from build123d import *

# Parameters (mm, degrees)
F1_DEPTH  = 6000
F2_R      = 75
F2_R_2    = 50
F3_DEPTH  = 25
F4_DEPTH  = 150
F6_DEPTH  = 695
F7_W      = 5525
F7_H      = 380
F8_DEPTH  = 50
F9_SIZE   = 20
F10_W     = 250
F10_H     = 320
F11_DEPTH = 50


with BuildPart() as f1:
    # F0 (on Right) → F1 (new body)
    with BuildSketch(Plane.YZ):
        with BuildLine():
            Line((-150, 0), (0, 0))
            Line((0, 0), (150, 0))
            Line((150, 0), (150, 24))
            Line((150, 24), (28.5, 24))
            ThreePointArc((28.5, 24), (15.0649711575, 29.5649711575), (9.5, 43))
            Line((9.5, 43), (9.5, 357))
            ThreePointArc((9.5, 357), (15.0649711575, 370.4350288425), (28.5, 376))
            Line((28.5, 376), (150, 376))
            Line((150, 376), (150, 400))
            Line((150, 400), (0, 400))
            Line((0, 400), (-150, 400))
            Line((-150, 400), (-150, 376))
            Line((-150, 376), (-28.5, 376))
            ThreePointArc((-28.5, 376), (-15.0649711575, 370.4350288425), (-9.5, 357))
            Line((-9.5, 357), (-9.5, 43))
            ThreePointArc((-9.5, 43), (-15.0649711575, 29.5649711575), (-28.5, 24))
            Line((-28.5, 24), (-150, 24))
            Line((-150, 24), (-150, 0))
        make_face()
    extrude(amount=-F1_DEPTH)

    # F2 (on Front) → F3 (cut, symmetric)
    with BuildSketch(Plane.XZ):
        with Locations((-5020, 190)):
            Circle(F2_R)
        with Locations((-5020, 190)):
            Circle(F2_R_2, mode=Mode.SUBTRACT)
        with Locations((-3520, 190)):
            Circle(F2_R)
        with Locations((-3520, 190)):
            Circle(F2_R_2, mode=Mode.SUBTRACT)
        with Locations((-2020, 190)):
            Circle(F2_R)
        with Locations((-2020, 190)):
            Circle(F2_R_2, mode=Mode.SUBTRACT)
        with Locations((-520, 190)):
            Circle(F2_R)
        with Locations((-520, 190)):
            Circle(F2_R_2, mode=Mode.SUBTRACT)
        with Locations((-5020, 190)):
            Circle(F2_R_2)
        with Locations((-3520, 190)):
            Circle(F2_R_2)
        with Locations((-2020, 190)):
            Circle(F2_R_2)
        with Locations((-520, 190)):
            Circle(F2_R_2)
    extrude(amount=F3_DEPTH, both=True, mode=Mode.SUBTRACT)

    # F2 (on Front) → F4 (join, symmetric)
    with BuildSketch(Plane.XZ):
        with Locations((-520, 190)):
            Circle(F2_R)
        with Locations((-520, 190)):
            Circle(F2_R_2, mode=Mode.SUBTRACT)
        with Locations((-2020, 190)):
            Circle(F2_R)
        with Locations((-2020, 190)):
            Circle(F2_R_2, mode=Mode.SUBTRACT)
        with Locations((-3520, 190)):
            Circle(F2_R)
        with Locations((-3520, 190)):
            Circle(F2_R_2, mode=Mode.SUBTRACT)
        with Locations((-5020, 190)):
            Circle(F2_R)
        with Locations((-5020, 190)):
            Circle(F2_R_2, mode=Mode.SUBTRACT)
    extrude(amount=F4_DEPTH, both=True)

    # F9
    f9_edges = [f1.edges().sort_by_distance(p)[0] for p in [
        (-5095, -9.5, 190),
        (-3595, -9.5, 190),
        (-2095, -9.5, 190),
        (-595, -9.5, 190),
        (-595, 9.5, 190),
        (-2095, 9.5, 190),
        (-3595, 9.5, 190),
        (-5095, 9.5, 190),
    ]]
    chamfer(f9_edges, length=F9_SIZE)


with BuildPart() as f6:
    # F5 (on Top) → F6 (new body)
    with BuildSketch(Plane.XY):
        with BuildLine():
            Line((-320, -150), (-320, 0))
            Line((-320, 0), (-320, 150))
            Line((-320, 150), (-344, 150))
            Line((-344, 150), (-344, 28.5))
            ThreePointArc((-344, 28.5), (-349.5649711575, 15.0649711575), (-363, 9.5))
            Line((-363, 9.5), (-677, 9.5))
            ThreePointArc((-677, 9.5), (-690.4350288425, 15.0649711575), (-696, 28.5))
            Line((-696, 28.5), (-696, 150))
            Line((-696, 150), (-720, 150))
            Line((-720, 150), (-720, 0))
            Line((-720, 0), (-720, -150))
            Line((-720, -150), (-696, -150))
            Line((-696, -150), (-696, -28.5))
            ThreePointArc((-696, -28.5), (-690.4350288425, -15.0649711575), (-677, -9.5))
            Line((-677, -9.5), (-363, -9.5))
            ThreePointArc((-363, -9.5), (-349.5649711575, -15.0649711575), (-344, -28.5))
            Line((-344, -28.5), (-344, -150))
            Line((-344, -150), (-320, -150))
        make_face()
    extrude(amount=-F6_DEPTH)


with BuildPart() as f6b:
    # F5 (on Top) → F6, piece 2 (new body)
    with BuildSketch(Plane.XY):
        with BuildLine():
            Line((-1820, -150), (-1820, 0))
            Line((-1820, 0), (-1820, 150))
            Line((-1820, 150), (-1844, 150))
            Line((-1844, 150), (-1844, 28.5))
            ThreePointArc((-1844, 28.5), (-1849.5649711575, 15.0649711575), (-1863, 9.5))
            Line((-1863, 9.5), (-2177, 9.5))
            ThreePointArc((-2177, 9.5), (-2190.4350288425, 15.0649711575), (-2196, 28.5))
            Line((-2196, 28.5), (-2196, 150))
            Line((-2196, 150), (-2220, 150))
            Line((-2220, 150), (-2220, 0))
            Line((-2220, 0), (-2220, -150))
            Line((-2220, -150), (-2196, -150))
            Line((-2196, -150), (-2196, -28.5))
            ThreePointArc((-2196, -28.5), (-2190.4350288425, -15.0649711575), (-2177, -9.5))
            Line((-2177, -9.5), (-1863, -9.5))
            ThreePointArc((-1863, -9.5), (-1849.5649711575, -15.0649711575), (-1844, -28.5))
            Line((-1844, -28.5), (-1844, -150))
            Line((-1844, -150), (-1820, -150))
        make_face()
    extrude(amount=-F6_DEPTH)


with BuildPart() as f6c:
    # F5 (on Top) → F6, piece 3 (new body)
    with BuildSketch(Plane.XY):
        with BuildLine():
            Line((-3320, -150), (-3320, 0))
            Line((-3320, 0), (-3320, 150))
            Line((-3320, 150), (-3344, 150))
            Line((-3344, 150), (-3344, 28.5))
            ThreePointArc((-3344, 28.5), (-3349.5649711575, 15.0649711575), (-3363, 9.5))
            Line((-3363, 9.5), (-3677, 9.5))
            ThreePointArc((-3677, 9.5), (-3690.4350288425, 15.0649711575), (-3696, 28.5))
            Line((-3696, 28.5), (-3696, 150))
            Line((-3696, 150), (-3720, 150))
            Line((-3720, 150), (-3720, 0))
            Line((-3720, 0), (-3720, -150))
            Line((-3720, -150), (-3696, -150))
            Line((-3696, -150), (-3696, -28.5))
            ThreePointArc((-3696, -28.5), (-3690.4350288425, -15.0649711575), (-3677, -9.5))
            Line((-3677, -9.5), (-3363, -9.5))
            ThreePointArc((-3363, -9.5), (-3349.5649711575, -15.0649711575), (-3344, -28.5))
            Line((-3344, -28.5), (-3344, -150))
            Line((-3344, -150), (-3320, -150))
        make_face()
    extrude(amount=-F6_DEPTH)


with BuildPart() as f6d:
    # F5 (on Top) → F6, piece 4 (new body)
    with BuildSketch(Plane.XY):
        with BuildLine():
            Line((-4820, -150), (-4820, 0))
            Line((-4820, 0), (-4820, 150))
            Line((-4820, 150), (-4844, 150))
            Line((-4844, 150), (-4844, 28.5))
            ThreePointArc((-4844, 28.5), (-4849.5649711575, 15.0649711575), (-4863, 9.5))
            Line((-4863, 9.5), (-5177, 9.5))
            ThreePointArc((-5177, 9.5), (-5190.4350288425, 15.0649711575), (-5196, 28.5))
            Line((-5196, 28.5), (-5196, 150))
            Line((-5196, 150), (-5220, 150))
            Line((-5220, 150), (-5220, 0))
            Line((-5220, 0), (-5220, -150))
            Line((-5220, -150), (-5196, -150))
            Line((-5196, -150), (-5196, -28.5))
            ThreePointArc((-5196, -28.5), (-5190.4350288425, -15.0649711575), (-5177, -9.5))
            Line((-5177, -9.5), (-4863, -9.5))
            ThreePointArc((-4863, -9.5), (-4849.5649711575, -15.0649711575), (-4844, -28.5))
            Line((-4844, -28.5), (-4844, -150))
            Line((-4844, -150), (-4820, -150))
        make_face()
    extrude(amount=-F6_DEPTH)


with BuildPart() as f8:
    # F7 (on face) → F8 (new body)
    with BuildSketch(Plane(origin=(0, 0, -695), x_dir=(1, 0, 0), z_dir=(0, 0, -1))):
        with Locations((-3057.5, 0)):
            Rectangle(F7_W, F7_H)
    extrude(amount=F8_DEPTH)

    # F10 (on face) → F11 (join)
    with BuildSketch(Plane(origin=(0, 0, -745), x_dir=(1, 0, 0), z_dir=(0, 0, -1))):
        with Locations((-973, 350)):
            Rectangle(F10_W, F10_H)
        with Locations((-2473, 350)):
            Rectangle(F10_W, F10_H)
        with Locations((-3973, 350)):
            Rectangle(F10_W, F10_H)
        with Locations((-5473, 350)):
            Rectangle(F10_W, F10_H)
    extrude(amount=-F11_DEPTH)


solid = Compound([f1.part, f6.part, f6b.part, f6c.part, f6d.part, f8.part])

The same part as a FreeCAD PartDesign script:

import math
import FreeCAD as App
import Part
import Sketcher


def edges_at(feature, points):
    """Names of the edges that pass closest to the given points."""
    edges = feature.Shape.Edges
    near = lambda p: min(range(len(edges)), key=lambda i: edges[i].distToShape(Part.Vertex(*p))[0])
    return sorted({f"Edge{near(p) + 1}" for p in points})


def add_polygon(sketch, points):
    """Adds a closed chain of lines whose ends are joined by coincident constraints."""
    first, n = sketch.GeometryCount, len(points)
    for a, b in zip(points, points[1:] + points[:1]):
        sketch.addGeometry(Part.LineSegment(App.Vector(*a, 0), App.Vector(*b, 0)), False)
    for i in range(n):
        sketch.addConstraint(Sketcher.Constraint("Coincident", first + i, 2, first + (i + 1) % n, 1))

doc = App.newDocument("Part")
body = doc.addObject("PartDesign::Body", "Body")

# Sketch on YZ plane
sketch1 = body.newObject("Sketcher::SketchObject", "Sketch")
sketch1.AttachmentSupport = (doc.getObject("YZ_Plane"), [""])
sketch1.MapMode = "FlatFace"
sketch1.addGeometry([
    Part.LineSegment(App.Vector(-150, 0, 0), App.Vector(150, 0, 0)),  # 0
    Part.LineSegment(App.Vector(150, 0, 0), App.Vector(150, 24, 0)),  # 1
    Part.LineSegment(App.Vector(150, 24, 0), App.Vector(28, 24, 0)),  # 2
    Part.ArcOfCircle(Part.Circle(App.Vector(28, 43, 0), App.Vector(0, 0, 1), 19), math.radians(180), math.radians(270)),  # 3
    Part.LineSegment(App.Vector(10, 43, 0), App.Vector(10, 357, 0)),  # 4
    Part.ArcOfCircle(Part.Circle(App.Vector(28, 357, 0), App.Vector(0, 0, 1), 19), math.radians(90), math.radians(180)),  # 5
    Part.LineSegment(App.Vector(28, 376, 0), App.Vector(150, 376, 0)),  # 6
    Part.LineSegment(App.Vector(150, 376, 0), App.Vector(150, 400, 0)),  # 7
    Part.LineSegment(App.Vector(150, 400, 0), App.Vector(-150, 400, 0)),  # 8
    Part.LineSegment(App.Vector(-150, 400, 0), App.Vector(-150, 376, 0)),  # 9
    Part.LineSegment(App.Vector(-150, 376, 0), App.Vector(-28, 376, 0)),  # 10
    Part.ArcOfCircle(Part.Circle(App.Vector(-28, 357, 0), App.Vector(0, 0, 1), 19), math.radians(0), math.radians(90)),  # 11
    Part.LineSegment(App.Vector(-10, 357, 0), App.Vector(-10, 43, 0)),  # 12
    Part.ArcOfCircle(Part.Circle(App.Vector(-28, 43, 0), App.Vector(0, 0, 1), 19), math.radians(-90), math.radians(0)),  # 13
    Part.LineSegment(App.Vector(-28, 24, 0), App.Vector(-150, 24, 0)),  # 14
    Part.LineSegment(App.Vector(-150, 24, 0), App.Vector(-150, 0, 0)),  # 15
], False)
sketch1.addConstraint([
    Sketcher.Constraint("Coincident", 0, 2, 1, 1),
    Sketcher.Constraint("Coincident", 1, 2, 2, 1),
    Sketcher.Constraint("Tangent", 2, 2, 3, 2),
    Sketcher.Constraint("Tangent", 3, 1, 4, 1),
    Sketcher.Constraint("Tangent", 4, 2, 5, 2),
    Sketcher.Constraint("Tangent", 5, 1, 6, 1),
    Sketcher.Constraint("Coincident", 6, 2, 7, 1),
    Sketcher.Constraint("Coincident", 7, 2, 8, 1),
    Sketcher.Constraint("Coincident", 8, 2, 9, 1),
    Sketcher.Constraint("Coincident", 9, 2, 10, 1),
    Sketcher.Constraint("Tangent", 10, 2, 11, 2),
    Sketcher.Constraint("Tangent", 11, 1, 12, 1),
    Sketcher.Constraint("Tangent", 12, 2, 13, 2),
    Sketcher.Constraint("Tangent", 13, 1, 14, 1),
    Sketcher.Constraint("Coincident", 14, 2, 15, 1),
    Sketcher.Constraint("Coincident", 15, 2, 0, 1),
    Sketcher.Constraint("Horizontal", 0),
    Sketcher.Constraint("Vertical", 1),
    Sketcher.Constraint("Horizontal", 2),
    Sketcher.Constraint("Vertical", 4),
    Sketcher.Constraint("Horizontal", 6),
    Sketcher.Constraint("Vertical", 7),
    Sketcher.Constraint("Horizontal", 8),
    Sketcher.Constraint("Vertical", 9),
    Sketcher.Constraint("Horizontal", 10),
    Sketcher.Constraint("Vertical", 12),
    Sketcher.Constraint("Horizontal", 14),
    Sketcher.Constraint("Vertical", 15),
    Sketcher.Constraint("Equal", 3, 5),
    Sketcher.Constraint("Equal", 5, 11),
    Sketcher.Constraint("Equal", 11, 13),
    Sketcher.Constraint("Symmetric", 0, 2, 15, 2, -1, 1),
    Sketcher.Constraint("Symmetric", 5, 3, 11, 3, -2),
    Sketcher.Constraint("Horizontal", 3, 3, 13, 3),
    Sketcher.Constraint("Vertical", 1, 2, 6, 2),
    Sketcher.Constraint("Vertical", 9, 2, 14, 2),
    Sketcher.Constraint("Equal", 1, 7),
    Sketcher.Constraint("Radius", 3, 19.0),
    Sketcher.Constraint("DistanceX", 0, 1, 0, 2, 300.0),
    Sketcher.Constraint("DistanceY", 1, 1, 1, 2, 24.0),
    Sketcher.Constraint("DistanceY", 4, 1, 4, 2, 314.0),
    Sketcher.Constraint("DistanceX", 2, 2, 2, 1, 121.5),
])
pad1 = body.newObject("PartDesign::Pad", "Pad")
pad1.Profile = sketch1
pad1.Length = 6000
pad1.Reversed = True

# Sketch on XZ plane
sketch2 = body.newObject("Sketcher::SketchObject", "Sketch001")
sketch2.AttachmentSupport = (doc.getObject("XZ_Plane"), [""])
sketch2.MapMode = "FlatFace"
sketch2.addGeometry([
    Part.Circle(App.Vector(-5020, 190, 0), App.Vector(0, 0, 1), 75),
    Part.Circle(App.Vector(-3520, 190, 0), App.Vector(0, 0, 1), 75),
    Part.Circle(App.Vector(-2020, 190, 0), App.Vector(0, 0, 1), 75),
    Part.Circle(App.Vector(-520, 190, 0), App.Vector(0, 0, 1), 75),
], False)
sketch2.addConstraint([
    Sketcher.Constraint("Equal", 0, 1),
    Sketcher.Constraint("Equal", 1, 2),
    Sketcher.Constraint("Equal", 2, 3),
    Sketcher.Constraint("Horizontal", 0, 3, 1, 3),
    Sketcher.Constraint("Horizontal", 1, 3, 2, 3),
    Sketcher.Constraint("Horizontal", 2, 3, 3, 3),
    Sketcher.Constraint("Diameter", 0, 150.0),
    Sketcher.Constraint("DistanceX", 0, 3, -1, 1, 5020.0),
    Sketcher.Constraint("DistanceY", -1, 1, 0, 3, 190.0),
    Sketcher.Constraint("DistanceX", 1, 3, -1, 1, 3520.0),
    Sketcher.Constraint("DistanceX", 2, 3, -1, 1, 2020.0),
    Sketcher.Constraint("DistanceX", 3, 3, -1, 1, 520.0),
])
pocket1 = body.newObject("PartDesign::Pocket", "Pocket")
pocket1.Profile = sketch2
pocket1.Length = 50
pocket1.Midplane = True

# Sketch on XZ plane
sketch3 = body.newObject("Sketcher::SketchObject", "Sketch002")
sketch3.AttachmentSupport = (doc.getObject("XZ_Plane"), [""])
sketch3.MapMode = "FlatFace"
sketch3.addGeometry([
    Part.Circle(App.Vector(-520, 190, 0), App.Vector(0, 0, 1), 75),  # 0
    Part.Circle(App.Vector(-520, 190, 0), App.Vector(0, 0, 1), 50),  # 1
    Part.Circle(App.Vector(-2020, 190, 0), App.Vector(0, 0, 1), 75),  # 2
    Part.Circle(App.Vector(-2020, 190, 0), App.Vector(0, 0, 1), 50),  # 3
    Part.Circle(App.Vector(-3520, 190, 0), App.Vector(0, 0, 1), 75),  # 4
    Part.Circle(App.Vector(-3520, 190, 0), App.Vector(0, 0, 1), 50),  # 5
    Part.Circle(App.Vector(-5020, 190, 0), App.Vector(0, 0, 1), 75),  # 6
    Part.Circle(App.Vector(-5020, 190, 0), App.Vector(0, 0, 1), 50),  # 7
], False)
sketch3.addConstraint([
    Sketcher.Constraint("Coincident", 1, 3, 0, 3),
    Sketcher.Constraint("Coincident", 3, 3, 2, 3),
    Sketcher.Constraint("Coincident", 5, 3, 4, 3),
    Sketcher.Constraint("Coincident", 7, 3, 6, 3),
    Sketcher.Constraint("Equal", 0, 2),
    Sketcher.Constraint("Equal", 1, 3),
    Sketcher.Constraint("Equal", 2, 4),
    Sketcher.Constraint("Equal", 3, 5),
    Sketcher.Constraint("Equal", 4, 6),
    Sketcher.Constraint("Equal", 5, 7),
    Sketcher.Constraint("Horizontal", 1, 3, 2, 3),
    Sketcher.Constraint("Horizontal", 3, 3, 4, 3),
    Sketcher.Constraint("Horizontal", 5, 3, 6, 3),
    Sketcher.Constraint("Diameter", 0, 150.0),
    Sketcher.Constraint("Diameter", 1, 100.0),
    Sketcher.Constraint("DistanceX", 0, 3, -1, 1, 520.0),
    Sketcher.Constraint("DistanceY", -1, 1, 0, 3, 190.0),
    Sketcher.Constraint("DistanceX", 2, 3, -1, 1, 2020.0),
    Sketcher.Constraint("DistanceX", 4, 3, -1, 1, 3520.0),
    Sketcher.Constraint("DistanceX", 6, 3, -1, 1, 5020.0),
])
pad2 = body.newObject("PartDesign::Pad", "Pad001")
pad2.Profile = sketch3
pad2.Length = 300
pad2.Midplane = True
doc.recompute()

chamfer = body.newObject("PartDesign::Chamfer", "Chamfer")
chamfer.Base = (pad2, edges_at(pad2, [
    (-5095, -9.5, 190),
    (-3595, -9.5, 190),
    (-2095, -9.5, 190),
    (-595, -9.5, 190),
    (-595, 9.5, 190),
    (-2095, 9.5, 190),
    (-3595, 9.5, 190),
    (-5095, 9.5, 190),
]))
chamfer.Size = 20
body2 = doc.addObject("PartDesign::Body", "Body001")

# Sketch on XY plane
sketch4 = body2.newObject("Sketcher::SketchObject", "Sketch003")
sketch4.AttachmentSupport = (doc.getObject("XY_Plane001"), [""])
sketch4.MapMode = "FlatFace"
sketch4.addGeometry([
    Part.LineSegment(App.Vector(-320, -150, 0), App.Vector(-320, 150, 0)),  # 0
    Part.LineSegment(App.Vector(-320, 150, 0), App.Vector(-344, 150, 0)),  # 1
    Part.LineSegment(App.Vector(-344, 150, 0), App.Vector(-344, 28, 0)),  # 2
    Part.ArcOfCircle(Part.Circle(App.Vector(-363, 28, 0), App.Vector(0, 0, 1), 19), math.radians(-90), math.radians(0)),  # 3
    Part.LineSegment(App.Vector(-363, 10, 0), App.Vector(-677, 10, 0)),  # 4
    Part.ArcOfCircle(Part.Circle(App.Vector(-677, 28, 0), App.Vector(0, 0, 1), 19), math.radians(180), math.radians(270)),  # 5
    Part.LineSegment(App.Vector(-696, 28, 0), App.Vector(-696, 150, 0)),  # 6
    Part.LineSegment(App.Vector(-696, 150, 0), App.Vector(-720, 150, 0)),  # 7
    Part.LineSegment(App.Vector(-720, 150, 0), App.Vector(-720, -150, 0)),  # 8
    Part.LineSegment(App.Vector(-720, -150, 0), App.Vector(-696, -150, 0)),  # 9
    Part.LineSegment(App.Vector(-696, -150, 0), App.Vector(-696, -28, 0)),  # 10
    Part.ArcOfCircle(Part.Circle(App.Vector(-677, -28, 0), App.Vector(0, 0, 1), 19), math.radians(90), math.radians(180)),  # 11
    Part.LineSegment(App.Vector(-677, -10, 0), App.Vector(-363, -10, 0)),  # 12
    Part.ArcOfCircle(Part.Circle(App.Vector(-363, -28, 0), App.Vector(0, 0, 1), 19), math.radians(0), math.radians(90)),  # 13
    Part.LineSegment(App.Vector(-344, -28, 0), App.Vector(-344, -150, 0)),  # 14
    Part.LineSegment(App.Vector(-344, -150, 0), App.Vector(-320, -150, 0)),  # 15
], False)
sketch4.addConstraint([
    Sketcher.Constraint("Coincident", 0, 2, 1, 1),
    Sketcher.Constraint("Coincident", 1, 2, 2, 1),
    Sketcher.Constraint("Tangent", 2, 2, 3, 2),
    Sketcher.Constraint("Tangent", 3, 1, 4, 1),
    Sketcher.Constraint("Tangent", 4, 2, 5, 2),
    Sketcher.Constraint("Tangent", 5, 1, 6, 1),
    Sketcher.Constraint("Coincident", 6, 2, 7, 1),
    Sketcher.Constraint("Coincident", 7, 2, 8, 1),
    Sketcher.Constraint("Coincident", 8, 2, 9, 1),
    Sketcher.Constraint("Coincident", 9, 2, 10, 1),
    Sketcher.Constraint("Tangent", 10, 2, 11, 2),
    Sketcher.Constraint("Tangent", 11, 1, 12, 1),
    Sketcher.Constraint("Tangent", 12, 2, 13, 2),
    Sketcher.Constraint("Tangent", 13, 1, 14, 1),
    Sketcher.Constraint("Coincident", 14, 2, 15, 1),
    Sketcher.Constraint("Coincident", 15, 2, 0, 1),
    Sketcher.Constraint("Vertical", 0),
    Sketcher.Constraint("Horizontal", 1),
    Sketcher.Constraint("Vertical", 2),
    Sketcher.Constraint("Horizontal", 4),
    Sketcher.Constraint("Vertical", 6),
    Sketcher.Constraint("Horizontal", 7),
    Sketcher.Constraint("Vertical", 8),
    Sketcher.Constraint("Horizontal", 9),
    Sketcher.Constraint("Vertical", 10),
    Sketcher.Constraint("Horizontal", 12),
    Sketcher.Constraint("Vertical", 14),
    Sketcher.Constraint("Horizontal", 15),
    Sketcher.Constraint("Equal", 3, 5),
    Sketcher.Constraint("Equal", 5, 11),
    Sketcher.Constraint("Equal", 11, 13),
    Sketcher.Constraint("Symmetric", 5, 3, 11, 3, -1),
    Sketcher.Constraint("Symmetric", 1, 2, 14, 2, -1),
    Sketcher.Constraint("Horizontal", 1, 2, 6, 2),
    Sketcher.Constraint("Horizontal", 9, 2, 14, 2),
    Sketcher.Constraint("Equal", 1, 7),
    Sketcher.Constraint("Radius", 3, 19.0),
    Sketcher.Constraint("DistanceX", 1, 2, 1, 1, 24.0),
    Sketcher.Constraint("DistanceX", 4, 2, 4, 1, 314.0),
    Sketcher.Constraint("DistanceY", 0, 1, 0, 2, 300.0),
    Sketcher.Constraint("DistanceY", 2, 2, 2, 1, 121.5),
    Sketcher.Constraint("DistanceX", 3, 3, -1, 1, 363.0),
])
pad3 = body2.newObject("PartDesign::Pad", "Pad002")
pad3.Profile = sketch4
pad3.Length = 695
pad3.Reversed = True
body3 = doc.addObject("PartDesign::Body", "Body002")

# Sketch on XY plane
sketch5 = body3.newObject("Sketcher::SketchObject", "Sketch004")
sketch5.AttachmentSupport = (doc.getObject("XY_Plane002"), [""])
sketch5.MapMode = "FlatFace"
sketch5.addGeometry([
    Part.LineSegment(App.Vector(-1820, -150, 0), App.Vector(-1820, 150, 0)),  # 0
    Part.LineSegment(App.Vector(-1820, 150, 0), App.Vector(-1844, 150, 0)),  # 1
    Part.LineSegment(App.Vector(-1844, 150, 0), App.Vector(-1844, 28, 0)),  # 2
    Part.ArcOfCircle(Part.Circle(App.Vector(-1863, 28, 0), App.Vector(0, 0, 1), 19), math.radians(-90), math.radians(0)),  # 3
    Part.LineSegment(App.Vector(-1863, 10, 0), App.Vector(-2177, 10, 0)),  # 4
    Part.ArcOfCircle(Part.Circle(App.Vector(-2177, 28, 0), App.Vector(0, 0, 1), 19), math.radians(180), math.radians(270)),  # 5
    Part.LineSegment(App.Vector(-2196, 28, 0), App.Vector(-2196, 150, 0)),  # 6
    Part.LineSegment(App.Vector(-2196, 150, 0), App.Vector(-2220, 150, 0)),  # 7
    Part.LineSegment(App.Vector(-2220, 150, 0), App.Vector(-2220, -150, 0)),  # 8
    Part.LineSegment(App.Vector(-2220, -150, 0), App.Vector(-2196, -150, 0)),  # 9
    Part.LineSegment(App.Vector(-2196, -150, 0), App.Vector(-2196, -28, 0)),  # 10
    Part.ArcOfCircle(Part.Circle(App.Vector(-2177, -28, 0), App.Vector(0, 0, 1), 19), math.radians(90), math.radians(180)),  # 11
    Part.LineSegment(App.Vector(-2177, -10, 0), App.Vector(-1863, -10, 0)),  # 12
    Part.ArcOfCircle(Part.Circle(App.Vector(-1863, -28, 0), App.Vector(0, 0, 1), 19), math.radians(0), math.radians(90)),  # 13
    Part.LineSegment(App.Vector(-1844, -28, 0), App.Vector(-1844, -150, 0)),  # 14
    Part.LineSegment(App.Vector(-1844, -150, 0), App.Vector(-1820, -150, 0)),  # 15
], False)
sketch5.addConstraint([
    Sketcher.Constraint("Coincident", 0, 2, 1, 1),
    Sketcher.Constraint("Coincident", 1, 2, 2, 1),
    Sketcher.Constraint("Tangent", 2, 2, 3, 2),
    Sketcher.Constraint("Tangent", 3, 1, 4, 1),
    Sketcher.Constraint("Tangent", 4, 2, 5, 2),
    Sketcher.Constraint("Tangent", 5, 1, 6, 1),
    Sketcher.Constraint("Coincident", 6, 2, 7, 1),
    Sketcher.Constraint("Coincident", 7, 2, 8, 1),
    Sketcher.Constraint("Coincident", 8, 2, 9, 1),
    Sketcher.Constraint("Coincident", 9, 2, 10, 1),
    Sketcher.Constraint("Tangent", 10, 2, 11, 2),
    Sketcher.Constraint("Tangent", 11, 1, 12, 1),
    Sketcher.Constraint("Tangent", 12, 2, 13, 2),
    Sketcher.Constraint("Tangent", 13, 1, 14, 1),
    Sketcher.Constraint("Coincident", 14, 2, 15, 1),
    Sketcher.Constraint("Coincident", 15, 2, 0, 1),
    Sketcher.Constraint("Vertical", 0),
    Sketcher.Constraint("Horizontal", 1),
    Sketcher.Constraint("Vertical", 2),
    Sketcher.Constraint("Horizontal", 4),
    Sketcher.Constraint("Vertical", 6),
    Sketcher.Constraint("Horizontal", 7),
    Sketcher.Constraint("Vertical", 8),
    Sketcher.Constraint("Horizontal", 9),
    Sketcher.Constraint("Vertical", 10),
    Sketcher.Constraint("Horizontal", 12),
    Sketcher.Constraint("Vertical", 14),
    Sketcher.Constraint("Horizontal", 15),
    Sketcher.Constraint("Equal", 3, 5),
    Sketcher.Constraint("Equal", 5, 11),
    Sketcher.Constraint("Equal", 11, 13),
    Sketcher.Constraint("Symmetric", 5, 3, 11, 3, -1),
    Sketcher.Constraint("Symmetric", 1, 2, 14, 2, -1),
    Sketcher.Constraint("Horizontal", 1, 2, 6, 2),
    Sketcher.Constraint("Horizontal", 9, 2, 14, 2),
    Sketcher.Constraint("Equal", 1, 7),
    Sketcher.Constraint("Radius", 3, 19.0),
    Sketcher.Constraint("DistanceX", 1, 2, 1, 1, 24.0),
    Sketcher.Constraint("DistanceX", 4, 2, 4, 1, 314.0),
    Sketcher.Constraint("DistanceY", 0, 1, 0, 2, 300.0),
    Sketcher.Constraint("DistanceY", 2, 2, 2, 1, 121.5),
    Sketcher.Constraint("DistanceX", 3, 3, -1, 1, 1863.0),
])
pad4 = body3.newObject("PartDesign::Pad", "Pad003")
pad4.Profile = sketch5
pad4.Length = 695
pad4.Reversed = True
body4 = doc.addObject("PartDesign::Body", "Body003")

# Sketch on XY plane
sketch6 = body4.newObject("Sketcher::SketchObject", "Sketch005")
sketch6.AttachmentSupport = (doc.getObject("XY_Plane003"), [""])
sketch6.MapMode = "FlatFace"
sketch6.addGeometry([
    Part.LineSegment(App.Vector(-3320, -150, 0), App.Vector(-3320, 150, 0)),  # 0
    Part.LineSegment(App.Vector(-3320, 150, 0), App.Vector(-3344, 150, 0)),  # 1
    Part.LineSegment(App.Vector(-3344, 150, 0), App.Vector(-3344, 28, 0)),  # 2
    Part.ArcOfCircle(Part.Circle(App.Vector(-3363, 28, 0), App.Vector(0, 0, 1), 19), math.radians(-90), math.radians(0)),  # 3
    Part.LineSegment(App.Vector(-3363, 10, 0), App.Vector(-3677, 10, 0)),  # 4
    Part.ArcOfCircle(Part.Circle(App.Vector(-3677, 28, 0), App.Vector(0, 0, 1), 19), math.radians(180), math.radians(270)),  # 5
    Part.LineSegment(App.Vector(-3696, 28, 0), App.Vector(-3696, 150, 0)),  # 6
    Part.LineSegment(App.Vector(-3696, 150, 0), App.Vector(-3720, 150, 0)),  # 7
    Part.LineSegment(App.Vector(-3720, 150, 0), App.Vector(-3720, -150, 0)),  # 8
    Part.LineSegment(App.Vector(-3720, -150, 0), App.Vector(-3696, -150, 0)),  # 9
    Part.LineSegment(App.Vector(-3696, -150, 0), App.Vector(-3696, -28, 0)),  # 10
    Part.ArcOfCircle(Part.Circle(App.Vector(-3677, -28, 0), App.Vector(0, 0, 1), 19), math.radians(90), math.radians(180)),  # 11
    Part.LineSegment(App.Vector(-3677, -10, 0), App.Vector(-3363, -10, 0)),  # 12
    Part.ArcOfCircle(Part.Circle(App.Vector(-3363, -28, 0), App.Vector(0, 0, 1), 19), math.radians(0), math.radians(90)),  # 13
    Part.LineSegment(App.Vector(-3344, -28, 0), App.Vector(-3344, -150, 0)),  # 14
    Part.LineSegment(App.Vector(-3344, -150, 0), App.Vector(-3320, -150, 0)),  # 15
], False)
sketch6.addConstraint([
    Sketcher.Constraint("Coincident", 0, 2, 1, 1),
    Sketcher.Constraint("Coincident", 1, 2, 2, 1),
    Sketcher.Constraint("Tangent", 2, 2, 3, 2),
    Sketcher.Constraint("Tangent", 3, 1, 4, 1),
    Sketcher.Constraint("Tangent", 4, 2, 5, 2),
    Sketcher.Constraint("Tangent", 5, 1, 6, 1),
    Sketcher.Constraint("Coincident", 6, 2, 7, 1),
    Sketcher.Constraint("Coincident", 7, 2, 8, 1),
    Sketcher.Constraint("Coincident", 8, 2, 9, 1),
    Sketcher.Constraint("Coincident", 9, 2, 10, 1),
    Sketcher.Constraint("Tangent", 10, 2, 11, 2),
    Sketcher.Constraint("Tangent", 11, 1, 12, 1),
    Sketcher.Constraint("Tangent", 12, 2, 13, 2),
    Sketcher.Constraint("Tangent", 13, 1, 14, 1),
    Sketcher.Constraint("Coincident", 14, 2, 15, 1),
    Sketcher.Constraint("Coincident", 15, 2, 0, 1),
    Sketcher.Constraint("Vertical", 0),
    Sketcher.Constraint("Horizontal", 1),
    Sketcher.Constraint("Vertical", 2),
    Sketcher.Constraint("Horizontal", 4),
    Sketcher.Constraint("Vertical", 6),
    Sketcher.Constraint("Horizontal", 7),
    Sketcher.Constraint("Vertical", 8),
    Sketcher.Constraint("Horizontal", 9),
    Sketcher.Constraint("Vertical", 10),
    Sketcher.Constraint("Horizontal", 12),
    Sketcher.Constraint("Vertical", 14),
    Sketcher.Constraint("Horizontal", 15),
    Sketcher.Constraint("Equal", 3, 5),
    Sketcher.Constraint("Equal", 5, 11),
    Sketcher.Constraint("Equal", 11, 13),
    Sketcher.Constraint("Symmetric", 5, 3, 11, 3, -1),
    Sketcher.Constraint("Symmetric", 1, 2, 14, 2, -1),
    Sketcher.Constraint("Horizontal", 1, 2, 6, 2),
    Sketcher.Constraint("Horizontal", 9, 2, 14, 2),
    Sketcher.Constraint("Equal", 1, 7),
    Sketcher.Constraint("Radius", 3, 19.0),
    Sketcher.Constraint("DistanceX", 1, 2, 1, 1, 24.0),
    Sketcher.Constraint("DistanceX", 4, 2, 4, 1, 314.0),
    Sketcher.Constraint("DistanceY", 0, 1, 0, 2, 300.0),
    Sketcher.Constraint("DistanceY", 2, 2, 2, 1, 121.5),
    Sketcher.Constraint("DistanceX", 3, 3, -1, 1, 3363.0),
])
pad5 = body4.newObject("PartDesign::Pad", "Pad004")
pad5.Profile = sketch6
pad5.Length = 695
pad5.Reversed = True
body5 = doc.addObject("PartDesign::Body", "Body004")

# Sketch on XY plane
sketch7 = body5.newObject("Sketcher::SketchObject", "Sketch006")
sketch7.AttachmentSupport = (doc.getObject("XY_Plane004"), [""])
sketch7.MapMode = "FlatFace"
sketch7.addGeometry([
    Part.LineSegment(App.Vector(-4820, -150, 0), App.Vector(-4820, 150, 0)),  # 0
    Part.LineSegment(App.Vector(-4820, 150, 0), App.Vector(-4844, 150, 0)),  # 1
    Part.LineSegment(App.Vector(-4844, 150, 0), App.Vector(-4844, 28, 0)),  # 2
    Part.ArcOfCircle(Part.Circle(App.Vector(-4863, 28, 0), App.Vector(0, 0, 1), 19), math.radians(-90), math.radians(0)),  # 3
    Part.LineSegment(App.Vector(-4863, 10, 0), App.Vector(-5177, 10, 0)),  # 4
    Part.ArcOfCircle(Part.Circle(App.Vector(-5177, 28, 0), App.Vector(0, 0, 1), 19), math.radians(180), math.radians(270)),  # 5
    Part.LineSegment(App.Vector(-5196, 28, 0), App.Vector(-5196, 150, 0)),  # 6
    Part.LineSegment(App.Vector(-5196, 150, 0), App.Vector(-5220, 150, 0)),  # 7
    Part.LineSegment(App.Vector(-5220, 150, 0), App.Vector(-5220, -150, 0)),  # 8
    Part.LineSegment(App.Vector(-5220, -150, 0), App.Vector(-5196, -150, 0)),  # 9
    Part.LineSegment(App.Vector(-5196, -150, 0), App.Vector(-5196, -28, 0)),  # 10
    Part.ArcOfCircle(Part.Circle(App.Vector(-5177, -28, 0), App.Vector(0, 0, 1), 19), math.radians(90), math.radians(180)),  # 11
    Part.LineSegment(App.Vector(-5177, -10, 0), App.Vector(-4863, -10, 0)),  # 12
    Part.ArcOfCircle(Part.Circle(App.Vector(-4863, -28, 0), App.Vector(0, 0, 1), 19), math.radians(0), math.radians(90)),  # 13
    Part.LineSegment(App.Vector(-4844, -28, 0), App.Vector(-4844, -150, 0)),  # 14
    Part.LineSegment(App.Vector(-4844, -150, 0), App.Vector(-4820, -150, 0)),  # 15
], False)
sketch7.addConstraint([
    Sketcher.Constraint("Coincident", 0, 2, 1, 1),
    Sketcher.Constraint("Coincident", 1, 2, 2, 1),
    Sketcher.Constraint("Tangent", 2, 2, 3, 2),
    Sketcher.Constraint("Tangent", 3, 1, 4, 1),
    Sketcher.Constraint("Tangent", 4, 2, 5, 2),
    Sketcher.Constraint("Tangent", 5, 1, 6, 1),
    Sketcher.Constraint("Coincident", 6, 2, 7, 1),
    Sketcher.Constraint("Coincident", 7, 2, 8, 1),
    Sketcher.Constraint("Coincident", 8, 2, 9, 1),
    Sketcher.Constraint("Coincident", 9, 2, 10, 1),
    Sketcher.Constraint("Tangent", 10, 2, 11, 2),
    Sketcher.Constraint("Tangent", 11, 1, 12, 1),
    Sketcher.Constraint("Tangent", 12, 2, 13, 2),
    Sketcher.Constraint("Tangent", 13, 1, 14, 1),
    Sketcher.Constraint("Coincident", 14, 2, 15, 1),
    Sketcher.Constraint("Coincident", 15, 2, 0, 1),
    Sketcher.Constraint("Vertical", 0),
    Sketcher.Constraint("Horizontal", 1),
    Sketcher.Constraint("Vertical", 2),
    Sketcher.Constraint("Horizontal", 4),
    Sketcher.Constraint("Vertical", 6),
    Sketcher.Constraint("Horizontal", 7),
    Sketcher.Constraint("Vertical", 8),
    Sketcher.Constraint("Horizontal", 9),
    Sketcher.Constraint("Vertical", 10),
    Sketcher.Constraint("Horizontal", 12),
    Sketcher.Constraint("Vertical", 14),
    Sketcher.Constraint("Horizontal", 15),
    Sketcher.Constraint("Equal", 3, 5),
    Sketcher.Constraint("Equal", 5, 11),
    Sketcher.Constraint("Equal", 11, 13),
    Sketcher.Constraint("Symmetric", 5, 3, 11, 3, -1),
    Sketcher.Constraint("Symmetric", 1, 2, 14, 2, -1),
    Sketcher.Constraint("Horizontal", 1, 2, 6, 2),
    Sketcher.Constraint("Horizontal", 9, 2, 14, 2),
    Sketcher.Constraint("Equal", 1, 7),
    Sketcher.Constraint("Radius", 3, 19.0),
    Sketcher.Constraint("DistanceX", 1, 2, 1, 1, 24.0),
    Sketcher.Constraint("DistanceX", 4, 2, 4, 1, 314.0),
    Sketcher.Constraint("DistanceY", 0, 1, 0, 2, 300.0),
    Sketcher.Constraint("DistanceY", 2, 2, 2, 1, 121.5),
    Sketcher.Constraint("DistanceX", 3, 3, -1, 1, 4863.0),
])
pad6 = body5.newObject("PartDesign::Pad", "Pad005")
pad6.Profile = sketch7
pad6.Length = 695
pad6.Reversed = True
body6 = doc.addObject("PartDesign::Body", "Body005")

# Sketch on XY plane
sketch8 = body6.newObject("Sketcher::SketchObject", "Sketch007")
sketch8.AttachmentSupport = (doc.getObject("XY_Plane005"), [""])
sketch8.MapMode = "FlatFace"
sketch8.AttachmentOffset = App.Placement(App.Vector(0, 0, -695), App.Rotation())
add_polygon(sketch8, [(-5820, -190), (-5820, 190), (-295, 190), (-295, -190)])  # lines 0-3
sketch8.addConstraint([
    Sketcher.Constraint("Vertical", 0),
    Sketcher.Constraint("Horizontal", 1),
    Sketcher.Constraint("Vertical", 2),
    Sketcher.Constraint("Horizontal", 3),
    Sketcher.Constraint("DistanceX", 1, 1, 1, 2, 5525.0),
    Sketcher.Constraint("DistanceY", 0, 1, 0, 2, 380.0),
    Sketcher.Constraint("DistanceX", 0, 2, -1, 1, 5820.0),
    Sketcher.Constraint("DistanceY", -1, 1, 0, 2, 190.0),
])
pad7 = body6.newObject("PartDesign::Pad", "Pad006")
pad7.Profile = sketch8
pad7.Length = 50
pad7.Reversed = True

# Sketch on XY plane
sketch9 = body6.newObject("Sketcher::SketchObject", "Sketch008")
sketch9.AttachmentSupport = (doc.getObject("XY_Plane005"), [""])
sketch9.MapMode = "FlatFace"
sketch9.AttachmentOffset = App.Placement(App.Vector(0, 0, -745), App.Rotation())
add_polygon(sketch9, [(-1098, -510), (-1098, -190), (-848, -190), (-848, -510)])  # lines 0-3
add_polygon(sketch9, [(-2598, -510), (-2598, -190), (-2348, -190), (-2348, -510)])  # lines 4-7
add_polygon(sketch9, [(-4098, -510), (-4098, -190), (-3848, -190), (-3848, -510)])  # lines 8-11
add_polygon(sketch9, [(-5598, -510), (-5598, -190), (-5348, -190), (-5348, -510)])  # lines 12-15
sketch9.addConstraint([
    Sketcher.Constraint("Vertical", 0),
    Sketcher.Constraint("Horizontal", 1),
    Sketcher.Constraint("Vertical", 2),
    Sketcher.Constraint("Horizontal", 3),
    Sketcher.Constraint("Vertical", 4),
    Sketcher.Constraint("Horizontal", 5),
    Sketcher.Constraint("Vertical", 6),
    Sketcher.Constraint("Horizontal", 7),
    Sketcher.Constraint("Vertical", 8),
    Sketcher.Constraint("Horizontal", 9),
    Sketcher.Constraint("Vertical", 10),
    Sketcher.Constraint("Horizontal", 11),
    Sketcher.Constraint("Vertical", 12),
    Sketcher.Constraint("Horizontal", 13),
    Sketcher.Constraint("Vertical", 14),
    Sketcher.Constraint("Horizontal", 15),
    Sketcher.Constraint("Horizontal", 1, 2, 4, 2),
    Sketcher.Constraint("Horizontal", 3, 2, 6, 2),
    Sketcher.Constraint("Horizontal", 5, 2, 8, 2),
    Sketcher.Constraint("Horizontal", 7, 2, 10, 2),
    Sketcher.Constraint("Horizontal", 9, 2, 12, 2),
    Sketcher.Constraint("Horizontal", 11, 2, 14, 2),
    Sketcher.Constraint("Equal", 3, 5),
    Sketcher.Constraint("Equal", 7, 9),
    Sketcher.Constraint("Equal", 11, 13),
    Sketcher.Constraint("DistanceX", 1, 1, 1, 2, 250.0),
    Sketcher.Constraint("DistanceY", 0, 1, 0, 2, 320.0),
    Sketcher.Constraint("DistanceX", 0, 2, -1, 1, 1098.0),
    Sketcher.Constraint("DistanceY", 0, 2, -1, 1, 190.0),
    Sketcher.Constraint("DistanceX", 4, 2, -1, 1, 2598.0),
    Sketcher.Constraint("DistanceX", 8, 2, -1, 1, 4098.0),
    Sketcher.Constraint("DistanceX", 12, 2, -1, 1, 5598.0),
])
pad8 = body6.newObject("PartDesign::Pad", "Pad007")
pad8.Profile = sketch9
pad8.Length = 50

doc.recompute()
